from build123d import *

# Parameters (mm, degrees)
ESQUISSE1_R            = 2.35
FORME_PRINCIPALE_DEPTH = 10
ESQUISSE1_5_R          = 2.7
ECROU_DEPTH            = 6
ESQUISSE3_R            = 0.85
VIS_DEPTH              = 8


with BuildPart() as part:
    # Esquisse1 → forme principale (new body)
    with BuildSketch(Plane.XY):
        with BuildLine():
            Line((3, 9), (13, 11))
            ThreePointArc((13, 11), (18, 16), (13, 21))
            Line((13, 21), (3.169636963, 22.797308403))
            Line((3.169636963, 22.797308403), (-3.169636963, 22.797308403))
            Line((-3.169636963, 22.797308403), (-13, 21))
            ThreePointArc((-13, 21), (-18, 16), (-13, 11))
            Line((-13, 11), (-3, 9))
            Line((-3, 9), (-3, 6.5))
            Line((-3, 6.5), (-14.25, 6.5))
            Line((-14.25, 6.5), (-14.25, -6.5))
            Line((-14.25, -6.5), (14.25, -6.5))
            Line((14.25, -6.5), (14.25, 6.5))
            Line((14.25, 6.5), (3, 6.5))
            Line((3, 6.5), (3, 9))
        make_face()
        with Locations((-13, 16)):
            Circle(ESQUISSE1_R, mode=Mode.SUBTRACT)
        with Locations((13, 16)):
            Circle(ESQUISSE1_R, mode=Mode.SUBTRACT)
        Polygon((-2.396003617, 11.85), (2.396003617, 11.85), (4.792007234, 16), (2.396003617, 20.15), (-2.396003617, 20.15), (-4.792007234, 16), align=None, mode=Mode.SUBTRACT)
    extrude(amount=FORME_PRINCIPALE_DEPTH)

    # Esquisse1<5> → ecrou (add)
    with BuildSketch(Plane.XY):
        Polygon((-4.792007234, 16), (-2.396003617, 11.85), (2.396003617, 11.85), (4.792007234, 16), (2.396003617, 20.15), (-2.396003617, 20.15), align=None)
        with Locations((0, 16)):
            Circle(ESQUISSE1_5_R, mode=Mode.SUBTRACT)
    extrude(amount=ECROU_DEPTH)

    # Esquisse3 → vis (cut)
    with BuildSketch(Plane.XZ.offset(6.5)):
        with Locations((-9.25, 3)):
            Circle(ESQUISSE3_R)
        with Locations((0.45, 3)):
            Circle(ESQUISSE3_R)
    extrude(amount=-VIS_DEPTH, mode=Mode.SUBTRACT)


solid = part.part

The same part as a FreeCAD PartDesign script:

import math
import FreeCAD as App
import Part
import Sketcher
Q = App.Units.Quantity


def add_polygon(sketch, points):
    """Adds a closed chain of lines whose ends are joined by coincident constraints."""
    first, n = sketch.GeometryCount, len(points)
    for a, b in zip(points, points[1:] + points[:1]):
        sketch.addGeometry(Part.LineSegment(App.Vector(*a, 0), App.Vector(*b, 0)), False)
    for i in range(n):
        sketch.addConstraint(Sketcher.Constraint("Coincident", first + i, 2, first + (i + 1) % n, 1))

doc = App.newDocument("Part")
body = doc.addObject("PartDesign::Body", "Body")

# Sketch on XY plane
sketch1 = body.newObject("Sketcher::SketchObject", "Sketch")
sketch1.AttachmentSupport = (doc.getObject("XY_Plane"), [""])
sketch1.MapMode = "FlatFace"
sketch1.addGeometry(Part.LineSegment(App.Vector(3, 9, 0), App.Vector(13, 11, 0)), False)  # 0
sketch1.addGeometry(Part.ArcOfCircle(Part.Circle(App.Vector(13, 16, 0), App.Vector(0, 0, 1), 5), math.radians(-90), math.radians(90)), False)  # 1
sketch1.addGeometry(Part.LineSegment(App.Vector(13, 21, 0), App.Vector(3.2, 22.8, 0)), False)  # 2
sketch1.addGeometry(Part.LineSegment(App.Vector(3.2, 22.8, 0), App.Vector(-3.2, 22.8, 0)), False)  # 3
sketch1.addGeometry(Part.LineSegment(App.Vector(-3.2, 22.8, 0), App.Vector(-13, 21, 0)), False)  # 4
sketch1.addGeometry(Part.ArcOfCircle(Part.Circle(App.Vector(-13, 16, 0), App.Vector(0, 0, 1), 5), math.radians(90), math.radians(270)), False)  # 5
sketch1.addGeometry(Part.LineSegment(App.Vector(-13, 11, 0), App.Vector(-3, 9, 0)), False)  # 6
sketch1.addGeometry(Part.LineSegment(App.Vector(-3, 9, 0), App.Vector(-3, 6.5, 0)), False)  # 7
sketch1.addGeometry(Part.LineSegment(App.Vector(-3, 6.5, 0), App.Vector(-14.2, 6.5, 0)), False)  # 8
sketch1.addGeometry(Part.LineSegment(App.Vector(-14.2, 6.5, 0), App.Vector(-14.2, -6.5, 0)), False)  # 9
sketch1.addGeometry(Part.LineSegment(App.Vector(-14.2, -6.5, 0), App.Vector(14.2, -6.5, 0)), False)  # 10
sketch1.addGeometry(Part.LineSegment(App.Vector(14.2, -6.5, 0), App.Vector(14.2, 6.5, 0)), False)  # 11
sketch1.addGeometry(Part.LineSegment(App.Vector(14.2, 6.5, 0), App.Vector(3, 6.5, 0)), False)  # 12
sketch1.addGeometry(Part.LineSegment(App.Vector(3, 6.5, 0), App.Vector(3, 9, 0)), False)  # 13
sketch1.addGeometry(Part.Circle(App.Vector(-13, 16, 0), App.Vector(0, 0, 1), 2.4), False)  # 14
add_polygon(sketch1, [(2.4, 11.8), (-2.4, 11.8), (-4.8, 16), (-2.4, 20.1), (2.4, 20.1), (4.8, 16)])  # lines 15-20
sketch1.addGeometry(Part.Circle(App.Vector(13, 16, 0), App.Vector(0, 0, 1), 2.4), False)  # 21
sketch1.addConstraint([
    Sketcher.Constraint("Coincident", 0, 2, 1, 1),
    Sketcher.Constraint("Coincident", 1, 2, 2, 1),
    Sketcher.Constraint("Coincident", 2, 2, 3, 1),
    Sketcher.Constraint("Coincident", 3, 2, 4, 1),
    Sketcher.Constraint("Coincident", 4, 2, 5, 1),
    Sketcher.Constraint("Coincident", 5, 2, 6, 1),
    Sketcher.Constraint("Coincident", 6, 2, 7, 1),
    Sketcher.Constraint("Coincident", 7, 2, 8, 1),
    Sketcher.Constraint("Coincident", 8, 2, 9, 1),
    Sketcher.Constraint("Coincident", 9, 2, 10, 1),
    Sketcher.Constraint("Coincident", 10, 2, 11, 1),
    Sketcher.Constraint("Coincident", 11, 2, 12, 1),
    Sketcher.Constraint("Coincident", 12, 2, 13, 1),
    Sketcher.Constraint("Coincident", 13, 2, 0, 1),
    Sketcher.Constraint("Horizontal", 3),
    Sketcher.Constraint("Vertical", 7),
    Sketcher.Constraint("Horizontal", 8),
    Sketcher.Constraint("Vertical", 9),
    Sketcher.Constraint("Horizontal", 10),
    Sketcher.Constraint("Vertical", 11),
    Sketcher.Constraint("Horizontal", 12),
    Sketcher.Constraint("Vertical", 13),
    Sketcher.Constraint("Horizontal", 15),
    Sketcher.Constraint("Horizontal", 18),
    Sketcher.Constraint("Coincident", 14, 3, 5, 3),
    Sketcher.Constraint("Coincident", 21, 3, 1, 3),
    Sketcher.Constraint("Equal", 1, 5),
    Sketcher.Constraint("Equal", 14, 21),
    Sketcher.Constraint("Symmetric", 8, 2, 10, 2, -1, 1),
    Sketcher.Constraint("Symmetric", 1, 3, 5, 3, -2),
    Sketcher.Constraint("Symmetric", 7, 2, 12, 2, -2),
    Sketcher.Constraint("Symmetric", 16, 2, 19, 2, -2),
    Sketcher.Constraint("Parallel", 16, 19),
    Sketcher.Constraint("Parallel", 17, 20),
    Sketcher.Constraint("Horizontal", 6, 2, 13, 2),
    Sketcher.Constraint("Horizontal", 21, 3, 16, 2),
    Sketcher.Constraint("Vertical", 21, 3, 0, 2),
    Sketcher.Constraint("Vertical", 0, 2, 1, 2),
    Sketcher.Constraint("Vertical", 14, 3, 4, 2),
    Sketcher.Constraint("Vertical", 4, 2, 5, 2),
    Sketcher.Constraint("Vertical", 15, 2, 17, 2),
    Sketcher.Constraint("Vertical", 18, 2, 20, 2),
    Sketcher.Constraint("Equal", 2, 4),
    Sketcher.Constraint("Radius", 1, 5.0),
    Sketcher.Constraint("Diameter", 14, 4.7),
    Sketcher.Constraint("DistanceY", 9, 2, 9, 1, 13.0),
    Sketcher.Constraint("Angle", 16, Q("120 deg")),
    Sketcher.Constraint("DistanceX", 10, 1, 10, 2, 28.5),
    Sketcher.Constraint("DistanceY", 7, 2, 7, 1, 2.5),
    Sketcher.Constraint("DistanceX", -1, 1, 1, 3, 13.0),
    Sketcher.Constraint("DistanceY", -1, 1, 1, 3, 16.0),
    Sketcher.Constraint("DistanceX", 6, 2, -1, 1, 3.0),
    Sketcher.Constraint("DistanceY", 15, 2, 17, 2, 8.3),
    Sketcher.Constraint("DistanceX", 3, 2, 3, 1, 6.339274),
    Sketcher.Constraint("DistanceX", 15, 2, 15, 1, 4.792007),
    Sketcher.Constraint("DistanceY", -1, 1, 2, 2, 22.797308),
])
pad1 = body.newObject("PartDesign::Pad", "Pad")
pad1.Profile = sketch1
pad1.Length = 10

# Sketch on XY plane
sketch2 = body.newObject("Sketcher::SketchObject", "Sketch001")
sketch2.AttachmentSupport = (doc.getObject("XY_Plane"), [""])
sketch2.MapMode = "FlatFace"
add_polygon(sketch2, [(-4.8, 16), (-2.4, 11.8), (2.4, 11.8), (4.8, 16), (2.4, 20.1), (-2.4, 20.1)])  # lines 0-5
sketch2.addGeometry(Part.Circle(App.Vector(0, 16, 0), App.Vector(0, 0, 1), 2.7), False)  # 6
sketch2.addConstraint([
    Sketcher.Constraint("Horizontal", 1),
    Sketcher.Constraint("Horizontal", 4),
    Sketcher.Constraint("Symmetric", 2, 2, 5, 2, -2),
    Sketcher.Constraint("PointOnObject", 6, 3, -2),
    Sketcher.Constraint("Parallel", 0, 3),
    Sketcher.Constraint("Parallel", 2, 5),
    Sketcher.Constraint("Horizontal", 6, 3, 2, 2),
    Sketcher.Constraint("Vertical", 1, 2, 3, 2),
    Sketcher.Constraint("Vertical", 0, 2, 4, 2),
    Sketcher.Constraint("Diameter", 6, 5.4),
    Sketcher.Constraint("Angle", 0, Q("-60 deg")),
    Sketcher.Constraint("DistanceY", -1, 1, 6, 3, 16.0),
    Sketcher.Constraint("DistanceY", 1, 2, 3, 2, 8.3),
    Sketcher.Constraint("DistanceX", 1, 1, 1, 2, 4.792007),
])
pad2 = body.newObject("PartDesign::Pad", "Pad001")
pad2.Profile = sketch2
pad2.Length = 6

# Sketch on XZ plane
sketch3 = body.newObject("Sketcher::SketchObject", "Sketch002")
sketch3.AttachmentSupport = (doc.getObject("XZ_Plane"), [""])
sketch3.MapMode = "FlatFace"
sketch3.AttachmentOffset = App.Placement(App.Vector(0, 0, 6.5), App.Rotation())
sketch3.addGeometry([
    Part.Circle(App.Vector(-9.2, 3, 0), App.Vector(0, 0, 1), 0.8),
    Part.Circle(App.Vector(0.5, 3, 0), App.Vector(0, 0, 1), 0.8),
], False)
sketch3.addConstraint([
    Sketcher.Constraint("Equal", 0, 1),
    Sketcher.Constraint("Horizontal", 0, 3, 1, 3),
    Sketcher.Constraint("Diameter", 0, 1.7),
    Sketcher.Constraint("DistanceY", -1, 1, 0, 3, 3.0),
    Sketcher.Constraint("DistanceX", 0, 3, 1, 3, 9.7),
    Sketcher.Constraint("DistanceX", 0, 3, -1, 1, 9.25),
])
pocket1 = body.newObject("PartDesign::Pocket", "Pocket")
pocket1.Profile = sketch3
pocket1.Length = 8

doc.recompute()
